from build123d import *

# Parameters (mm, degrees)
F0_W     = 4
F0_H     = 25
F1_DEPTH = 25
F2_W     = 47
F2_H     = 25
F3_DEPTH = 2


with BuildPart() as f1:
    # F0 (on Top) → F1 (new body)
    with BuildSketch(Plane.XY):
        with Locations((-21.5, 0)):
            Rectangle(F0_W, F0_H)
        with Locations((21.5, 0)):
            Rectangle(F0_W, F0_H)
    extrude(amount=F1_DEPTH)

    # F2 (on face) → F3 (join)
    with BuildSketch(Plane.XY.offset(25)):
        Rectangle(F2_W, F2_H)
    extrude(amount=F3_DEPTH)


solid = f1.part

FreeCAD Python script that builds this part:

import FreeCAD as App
import Part
import Sketcher

doc = App.newDocument("Part")
body = doc.addObject("PartDesign::Body", "Body")
body.AllowCompound = True

sketch1 = doc.addObject("Sketcher::SketchObject", "Sketch")
body.addObject(sketch1)
sketch1.AttachmentSupport = (doc.XY_Plane, [""])
sketch1.MapMode = "FlatFace"
sketch1.addGeometry([
    Part.LineSegment(App.Vector(-23.5, 12.5, 0), App.Vector(-23.5, -12.5, 0)),
    Part.LineSegment(App.Vector(-23.5, -12.5, 0), App.Vector(-19.5, -12.5, 0)),
    Part.LineSegment(App.Vector(-19.5, -12.5, 0), App.Vector(-19.5, 12.5, 0)),
    Part.LineSegment(App.Vector(-19.5, 12.5, 0), App.Vector(-23.5, 12.5, 0)),
    Part.LineSegment(App.Vector(19.5, 12.5, 0), App.Vector(19.5, -12.5, 0)),
    Part.LineSegment(App.Vector(19.5, -12.5, 0), App.Vector(23.5, -12.5, 0)),
    Part.LineSegment(App.Vector(23.5, -12.5, 0), App.Vector(23.5, 12.5, 0)),
    Part.LineSegment(App.Vector(23.5, 12.5, 0), App.Vector(19.5, 12.5, 0)),
], False)
sketch1.addConstraint([
    Sketcher.Constraint("Coincident", 0, 2, 1, 1),
    Sketcher.Constraint("Coincident", 1, 2, 2, 1),
    Sketcher.Constraint("Coincident", 2, 2, 3, 1),
    Sketcher.Constraint("Coincident", 3, 2, 0, 1),
    Sketcher.Constraint("Coincident", 4, 2, 5, 1),
    Sketcher.Constraint("Coincident", 5, 2, 6, 1),
    Sketcher.Constraint("Coincident", 6, 2, 7, 1),
    Sketcher.Constraint("Coincident", 7, 2, 4, 1),
    Sketcher.Constraint("Vertical", 0),
    Sketcher.Constraint("Horizontal", 1),
    Sketcher.Constraint("Vertical", 2),
    Sketcher.Constraint("Horizontal", 3),
    Sketcher.Constraint("Vertical", 4),
    Sketcher.Constraint("Horizontal", 5),
    Sketcher.Constraint("Vertical", 6),
    Sketcher.Constraint("Horizontal", 7),
    Sketcher.Constraint("Symmetric", 2, 2, 4, 2, -1, 1),
    Sketcher.Constraint("Symmetric", 0, 2, 6, 2, -1, 1),
    Sketcher.Constraint("Horizontal", 1, 2, 4, 2),
    Sketcher.Constraint("DistanceX", 1, 1, 1, 2, 4.0),
    Sketcher.Constraint("DistanceY", 0, 2, 0, 1, 25.0),
    Sketcher.Constraint("DistanceX", 1, 2, 4, 2, 39.0),
])
pad1 = doc.addObject("PartDesign::Pad", "Pad")
body.addObject(pad1)
pad1.Profile = sketch1
pad1.Length = 25

sketch2 = doc.addObject("Sketcher::SketchObject", "Sketch001")
body.addObject(sketch2)
sketch2.AttachmentSupport = (doc.XY_Plane, [""])
sketch2.MapMode = "FlatFace"
sketch2.AttachmentOffset = App.Placement(App.Vector(0, 0, 25), App.Rotation())
sketch2.addGeometry([
    Part.LineSegment(App.Vector(-24, 12, 0), App.Vector(-24, -12, 0)),
    Part.LineSegment(App.Vector(-24, -12, 0), App.Vector(24, -12, 0)),
    Part.LineSegment(App.Vector(24, -12, 0), App.Vector(24, 12, 0)),
    Part.LineSegment(App.Vector(24, 12, 0), App.Vector(-24, 12, 0)),
], False)
sketch2.addConstraint([
    Sketcher.Constraint("Coincident", 0, 2, 1, 1),
    Sketcher.Constraint("Coincident", 1, 2, 2, 1),
    Sketcher.Constraint("Coincident", 2, 2, 3, 1),
    Sketcher.Constraint("Coincident", 3, 2, 0, 1),
    Sketcher.Constraint("Vertical", 0),
    Sketcher.Constraint("Horizontal", 1),
    Sketcher.Constraint("Vertical", 2),
    Sketcher.Constraint("Horizontal", 3),
    Sketcher.Constraint("Symmetric", 0, 2, 2, 2, -1, 1),
    Sketcher.Constraint("DistanceX", 1, 1, 1, 2, 47.0),
    Sketcher.Constraint("DistanceY", 0, 2, 0, 1, 25.0),
])
pad2 = doc.addObject("PartDesign::Pad", "Pad001")
body.addObject(pad2)
pad2.Profile = sketch2
pad2.Length = 2

doc.recompute()
